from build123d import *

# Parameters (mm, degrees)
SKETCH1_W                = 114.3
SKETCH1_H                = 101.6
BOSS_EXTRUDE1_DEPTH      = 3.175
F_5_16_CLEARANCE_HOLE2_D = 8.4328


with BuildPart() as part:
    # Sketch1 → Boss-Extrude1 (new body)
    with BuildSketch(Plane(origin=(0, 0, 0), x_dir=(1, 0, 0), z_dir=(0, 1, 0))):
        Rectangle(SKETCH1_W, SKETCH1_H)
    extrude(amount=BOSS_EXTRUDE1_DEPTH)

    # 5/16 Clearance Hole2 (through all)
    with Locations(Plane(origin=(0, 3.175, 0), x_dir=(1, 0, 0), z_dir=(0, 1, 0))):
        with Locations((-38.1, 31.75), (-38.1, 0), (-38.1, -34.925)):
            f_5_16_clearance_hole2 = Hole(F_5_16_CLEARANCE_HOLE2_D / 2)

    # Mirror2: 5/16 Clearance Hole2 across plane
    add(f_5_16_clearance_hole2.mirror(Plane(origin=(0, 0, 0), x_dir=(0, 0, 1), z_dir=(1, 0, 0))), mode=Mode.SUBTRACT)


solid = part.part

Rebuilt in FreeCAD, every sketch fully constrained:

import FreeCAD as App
import Part
import Sketcher

V = App.Vector
Q = App.Units.Quantity


def add_polygon(sketch, points):
    """Adds a closed chain of lines whose ends are joined by coincident constraints."""
    first, n = sketch.GeometryCount, len(points)
    for a, b in zip(points, points[1:] + points[:1]):
        sketch.addGeometry(Part.LineSegment(App.Vector(*a, 0), App.Vector(*b, 0)), False)
    for i in range(n):
        sketch.addConstraint(Sketcher.Constraint("Coincident", first + i, 2, first + (i + 1) % n, 1))

doc = App.newDocument("Part")
body = doc.addObject("PartDesign::Body", "Body")

# Sketch on XZ plane
sketch1 = body.newObject("Sketcher::SketchObject", "Sketch")
sketch1.AttachmentSupport = (doc.getObject("XZ_Plane"), [""])
sketch1.MapMode = "FlatFace"
add_polygon(sketch1, [(-57, -51), (-57, 51), (57, 51), (57, -51)])  # lines 0-3
sketch1.addConstraint(Sketcher.Constraint("Vertical", 0))
sketch1.addConstraint(Sketcher.Constraint("Horizontal", 1))
sketch1.addConstraint(Sketcher.Constraint("Vertical", 2))
sketch1.addConstraint(Sketcher.Constraint("Horizontal", 3))
sketch1.addConstraint(Sketcher.Constraint("Symmetric", 0, 2, 2, 2, -1, 1))
sketch1.addConstraint(Sketcher.Constraint("DistanceY", 0, 1, 0, 2, Q("4 in")))
sketch1.addConstraint(Sketcher.Constraint("DistanceX", 1, 1, 1, 2, Q("4.5 in")))
pad1 = body.newObject("PartDesign::Pad", "Pad")
pad1.Profile = sketch1
pad1.Length = Q("0.125 in")
pad1.Reversed = True

# Sketch on XZ plane
sketch2 = body.newObject("Sketcher::SketchObject", "Sketch001")
sketch2.AttachmentSupport = (doc.getObject("XZ_Plane"), [""])
sketch2.MapMode = "FlatFace"
sketch2.AttachmentOffset = App.Placement(V(0, 0, -0.125 * 25.4), App.Rotation())
sketch2.addGeometry(Part.Circle(V(-38.1, -31.8, 0), V(0, 0, 1), 4.2), False)
sketch2.addGeometry(Part.Circle(V(-38.1, 0, 0), V(0, 0, 1), 4.2), False)
sketch2.addGeometry(Part.Circle(V(-38.1, 34.9, 0), V(0, 0, 1), 4.2), False)
sketch2.addConstraint(Sketcher.Constraint("Equal", 0, 1))
sketch2.addConstraint(Sketcher.Constraint("Equal", 1, 2))
sketch2.addConstraint(Sketcher.Constraint("PointOnObject", 1, 3, -1))
sketch2.addConstraint(Sketcher.Constraint("Vertical", 0, 3, 1, 3))
sketch2.addConstraint(Sketcher.Constraint("Vertical", 1, 3, 2, 3))
sketch2.addConstraint(Sketcher.Constraint("Diameter", 0, Q("0.332 in")))
sketch2.addConstraint(Sketcher.Constraint("DistanceX", 0, 3, -1, 1, Q("1.5 in")))
sketch2.addConstraint(Sketcher.Constraint("DistanceY", 0, 3, -1, 1, Q("1.25 in")))
sketch2.addConstraint(Sketcher.Constraint("DistanceY", -1, 1, 2, 3, Q("1.375 in")))
doc.recompute()
hole = body.newObject("PartDesign::Hole", "Hole")
hole.Profile = sketch2
hole.ThreadType = "None"
hole.Diameter = Q("0.332 in")
hole.DepthType = "ThroughAll"
hole.Reversed = True
doc.recompute()

mirrored = body.newObject("PartDesign::Mirrored", "Mirrored")
mirrored.Originals = [hole]
mirrored.MirrorPlane = (doc.getObject("YZ_Plane"), [""])
body.Tip = mirrored

doc.recompute()
